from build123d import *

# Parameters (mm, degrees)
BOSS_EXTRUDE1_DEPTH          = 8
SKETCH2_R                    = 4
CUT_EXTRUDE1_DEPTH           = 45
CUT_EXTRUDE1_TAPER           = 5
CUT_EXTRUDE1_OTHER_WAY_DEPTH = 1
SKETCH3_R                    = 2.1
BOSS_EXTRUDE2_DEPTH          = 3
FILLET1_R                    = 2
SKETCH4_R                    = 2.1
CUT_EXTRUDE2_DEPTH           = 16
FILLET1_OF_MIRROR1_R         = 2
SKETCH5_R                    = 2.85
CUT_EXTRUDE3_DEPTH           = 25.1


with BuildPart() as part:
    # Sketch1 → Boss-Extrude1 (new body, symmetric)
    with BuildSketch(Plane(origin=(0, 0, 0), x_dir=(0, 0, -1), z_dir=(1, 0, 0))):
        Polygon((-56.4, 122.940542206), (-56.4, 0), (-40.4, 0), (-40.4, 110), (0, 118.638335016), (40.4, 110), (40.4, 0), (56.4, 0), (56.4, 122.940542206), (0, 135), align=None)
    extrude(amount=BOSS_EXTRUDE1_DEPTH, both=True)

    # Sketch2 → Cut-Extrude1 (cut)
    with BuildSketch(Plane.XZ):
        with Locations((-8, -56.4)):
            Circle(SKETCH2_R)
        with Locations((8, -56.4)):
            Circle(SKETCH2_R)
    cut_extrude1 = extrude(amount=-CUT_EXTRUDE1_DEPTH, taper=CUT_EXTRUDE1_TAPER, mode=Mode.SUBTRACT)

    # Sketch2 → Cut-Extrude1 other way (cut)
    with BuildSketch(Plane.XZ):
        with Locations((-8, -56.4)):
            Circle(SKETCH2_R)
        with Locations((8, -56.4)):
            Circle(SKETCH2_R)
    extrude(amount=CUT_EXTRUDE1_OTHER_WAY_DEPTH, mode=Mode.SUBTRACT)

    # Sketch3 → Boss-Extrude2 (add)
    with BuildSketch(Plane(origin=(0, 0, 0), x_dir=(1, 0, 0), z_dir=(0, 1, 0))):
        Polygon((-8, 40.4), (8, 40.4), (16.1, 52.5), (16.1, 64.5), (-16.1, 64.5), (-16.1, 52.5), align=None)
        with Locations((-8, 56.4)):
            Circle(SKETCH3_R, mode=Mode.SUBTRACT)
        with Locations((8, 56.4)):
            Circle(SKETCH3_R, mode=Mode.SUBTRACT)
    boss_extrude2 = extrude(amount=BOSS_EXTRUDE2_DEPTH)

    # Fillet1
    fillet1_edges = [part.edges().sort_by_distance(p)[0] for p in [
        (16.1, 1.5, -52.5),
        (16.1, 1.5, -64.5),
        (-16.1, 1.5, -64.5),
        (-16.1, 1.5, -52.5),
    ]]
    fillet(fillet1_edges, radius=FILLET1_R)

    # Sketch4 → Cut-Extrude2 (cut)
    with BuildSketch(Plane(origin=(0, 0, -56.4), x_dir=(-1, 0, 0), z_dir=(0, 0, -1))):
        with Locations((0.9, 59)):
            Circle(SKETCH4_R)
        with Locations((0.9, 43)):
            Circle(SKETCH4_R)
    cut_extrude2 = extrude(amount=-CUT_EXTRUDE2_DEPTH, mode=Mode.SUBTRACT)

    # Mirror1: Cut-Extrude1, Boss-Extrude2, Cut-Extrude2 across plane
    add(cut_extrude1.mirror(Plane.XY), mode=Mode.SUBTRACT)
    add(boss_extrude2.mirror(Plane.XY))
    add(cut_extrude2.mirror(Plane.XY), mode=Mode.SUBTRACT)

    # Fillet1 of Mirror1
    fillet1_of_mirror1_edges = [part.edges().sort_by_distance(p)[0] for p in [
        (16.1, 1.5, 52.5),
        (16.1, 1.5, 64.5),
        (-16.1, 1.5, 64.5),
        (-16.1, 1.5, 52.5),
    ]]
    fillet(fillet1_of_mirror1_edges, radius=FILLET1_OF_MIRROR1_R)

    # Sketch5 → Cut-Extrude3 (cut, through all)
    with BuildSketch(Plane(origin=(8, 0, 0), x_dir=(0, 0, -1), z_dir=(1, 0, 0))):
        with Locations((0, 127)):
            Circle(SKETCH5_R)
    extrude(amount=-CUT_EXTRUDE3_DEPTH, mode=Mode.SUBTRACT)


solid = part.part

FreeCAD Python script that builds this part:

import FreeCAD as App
import Part
import Sketcher

V = App.Vector


def edges_at(feature, points):
    """Names of the edges that pass closest to the given points."""
    edges = feature.Shape.Edges
    near = lambda p: min(range(len(edges)), key=lambda i: edges[i].distToShape(Part.Vertex(*p))[0])
    return sorted({f"Edge{near(p) + 1}" for p in points})

doc = App.newDocument("Part")
body = doc.addObject("PartDesign::Body", "Body")

sketch1 = doc.addObject("Sketcher::SketchObject", "Sketch")
body.addObject(sketch1)
sketch1.AttachmentSupport = (doc.YZ_Plane, [""])
sketch1.MapMode = "FlatFace"
sketch1.addGeometry([
    Part.LineSegment(V(123, 56, 0), V(0, 56, 0)),
    Part.LineSegment(V(0, 56, 0), V(0, 40, 0)),
    Part.LineSegment(V(0, 40, 0), V(110, 40, 0)),
    Part.LineSegment(V(110, 40, 0), V(119, 0, 0)),
    Part.LineSegment(V(119, 0, 0), V(110, -40, 0)),
    Part.LineSegment(V(110, -40, 0), V(0, -40, 0)),
    Part.LineSegment(V(0, -40, 0), V(0, -56, 0)),
    Part.LineSegment(V(0, -56, 0), V(123, -56, 0)),
    Part.LineSegment(V(123, -56, 0), V(135, 0, 0)),
    Part.LineSegment(V(135, 0, 0), V(123, 56, 0)),
], False)
sketch1.addConstraint([
    Sketcher.Constraint("Coincident", 0, 2, 1, 1),
    Sketcher.Constraint("Coincident", 1, 2, 2, 1),
    Sketcher.Constraint("Coincident", 2, 2, 3, 1),
    Sketcher.Constraint("Coincident", 3, 2, 4, 1),
    Sketcher.Constraint("Coincident", 4, 2, 5, 1),
    Sketcher.Constraint("Coincident", 5, 2, 6, 1),
    Sketcher.Constraint("Coincident", 6, 2, 7, 1),
    Sketcher.Constraint("Coincident", 7, 2, 8, 1),
    Sketcher.Constraint("Coincident", 8, 2, 9, 1),
    Sketcher.Constraint("Coincident", 9, 2, 0, 1),
    Sketcher.Constraint("Horizontal", 0),
    Sketcher.Constraint("Vertical", 1),
    Sketcher.Constraint("Horizontal", 2),
    Sketcher.Constraint("Horizontal", 5),
    Sketcher.Constraint("Vertical", 6),
    Sketcher.Constraint("Horizontal", 7),
    Sketcher.Constraint("Symmetric", 1, 2, 5, 2, -1, 1),
    Sketcher.Constraint("Symmetric", 0, 2, 6, 2, -1),
    Sketcher.Constraint("PointOnObject", 3, 2, -1),
    Sketcher.Constraint("PointOnObject", 8, 2, -1),
    Sketcher.Constraint("Parallel", 4, 8),
    Sketcher.Constraint("Parallel", 3, 9),
    Sketcher.Constraint("Vertical", 2, 2, 4, 2),
    Sketcher.Constraint("DistanceX", 2, 1, 2, 2, 110.0),
    Sketcher.Constraint("DistanceY", 1, 2, 1, 1, 16.0),
    Sketcher.Constraint("DistanceX", -1, 1, 8, 2, 135.0),
    Sketcher.Constraint("DistanceY", -1, 1, 0, 2, 56.4),
    Sketcher.Constraint("Distance", 8, 57.674869),
])
pad1 = doc.addObject("PartDesign::Pad", "Pad")
body.addObject(pad1)
pad1.Profile = sketch1
pad1.Length = 16
pad1.Midplane = True

sketch2 = doc.addObject("Sketcher::SketchObject", "Sketch001")
body.addObject(sketch2)
sketch2.AttachmentSupport = (doc.XZ_Plane, [""])
sketch2.MapMode = "FlatFace"
sketch2.addGeometry([
    Part.Circle(V(-8, -56.4, 0), V(0, 0, 1), 4),
    Part.Circle(V(8, -56.4, 0), V(0, 0, 1), 4),
], False)
sketch2.addConstraint([
    Sketcher.Constraint("Equal", 0, 1),
    Sketcher.Constraint("Symmetric", 0, 3, 1, 3, -2),
    Sketcher.Constraint("Diameter", 0, 8.0),
    Sketcher.Constraint("DistanceX", 0, 3, -1, 1, 8.0),
    Sketcher.Constraint("DistanceY", 0, 3, -1, 1, 56.4),
])
pocket1 = doc.addObject("PartDesign::Pocket", "Pocket")
body.addObject(pocket1)
pocket1.Profile = sketch2
pocket1.Length = 45
pocket1.TaperAngle = -5

sketch3 = doc.addObject("Sketcher::SketchObject", "Sketch002")
body.addObject(sketch3)
sketch3.AttachmentSupport = (doc.XZ_Plane, [""])
sketch3.MapMode = "FlatFace"
sketch3.addGeometry([
    Part.Circle(V(-8, -56.4, 0), V(0, 0, 1), 4),
    Part.Circle(V(8, -56.4, 0), V(0, 0, 1), 4),
], False)
sketch3.addConstraint([
    Sketcher.Constraint("Equal", 0, 1),
    Sketcher.Constraint("Symmetric", 0, 3, 1, 3, -2),
    Sketcher.Constraint("Diameter", 0, 8.0),
    Sketcher.Constraint("DistanceX", 0, 3, -1, 1, 8.0),
    Sketcher.Constraint("DistanceY", 0, 3, -1, 1, 56.4),
])
pocket2 = doc.addObject("PartDesign::Pocket", "Pocket001")
body.addObject(pocket2)
pocket2.Profile = sketch3
pocket2.Length = 1
pocket2.Reversed = True

sketch4 = doc.addObject("Sketcher::SketchObject", "Sketch003")
body.addObject(sketch4)
sketch4.AttachmentSupport = (doc.XZ_Plane, [""])
sketch4.MapMode = "FlatFace"
sketch4.addGeometry([
    Part.LineSegment(V(-8, -40.4, 0), V(8, -40.4, 0)),
    Part.LineSegment(V(8, -40.4, 0), V(16.1, -52.5, 0)),
    Part.LineSegment(V(16.1, -52.5, 0), V(16.1, -64.5, 0)),
    Part.LineSegment(V(16.1, -64.5, 0), V(-16.1, -64.5, 0)),
    Part.LineSegment(V(-16.1, -64.5, 0), V(-16.1, -52.5, 0)),
    Part.LineSegment(V(-16.1, -52.5, 0), V(-8, -40.4, 0)),
    Part.Circle(V(-8, -56.4, 0), V(0, 0, 1), 2.1),
    Part.Circle(V(8, -56.4, 0), V(0, 0, 1), 2.1),
], False)
sketch4.addConstraint([
    Sketcher.Constraint("Coincident", 0, 2, 1, 1),
    Sketcher.Constraint("Coincident", 1, 2, 2, 1),
    Sketcher.Constraint("Coincident", 2, 2, 3, 1),
    Sketcher.Constraint("Coincident", 3, 2, 4, 1),
    Sketcher.Constraint("Coincident", 4, 2, 5, 1),
    Sketcher.Constraint("Coincident", 5, 2, 0, 1),
    Sketcher.Constraint("Horizontal", 0),
    Sketcher.Constraint("Vertical", 2),
    Sketcher.Constraint("Horizontal", 3),
    Sketcher.Constraint("Vertical", 4),
    Sketcher.Constraint("Equal", 6, 7),
    Sketcher.Constraint("Symmetric", 6, 3, 7, 3, -2),
    Sketcher.Constraint("Symmetric", 1, 2, 4, 2, -2),
    Sketcher.Constraint("Vertical", 7, 3, 0, 2),
    Sketcher.Constraint("Vertical", 6, 3, 5, 2),
    Sketcher.Constraint("Diameter", 6, 4.2),
    Sketcher.Constraint("DistanceX", 0, 1, 0, 2, 16.0),
    Sketcher.Constraint("DistanceY", 2, 2, 2, 1, 12.0),
    Sketcher.Constraint("DistanceX", 3, 2, 3, 1, 32.2),
    Sketcher.Constraint("DistanceY", 7, 3, 0, 2, 16.0),
    Sketcher.Constraint("DistanceY", 6, 3, -1, 1, 56.4),
    Sketcher.Constraint("DistanceY", 1, 2, -1, 1, 52.5),
])
pad2 = doc.addObject("PartDesign::Pad", "Pad001")
body.addObject(pad2)
pad2.Profile = sketch4
pad2.Length = 3
pad2.Reversed = True
doc.recompute()

fillet = doc.addObject("PartDesign::Fillet", "Fillet")
body.addObject(fillet)
fillet.Base = (pad2, edges_at(pad2, [
    (16.1, 1.5, -52.5),
    (16.1, 1.5, -64.5),
    (-16.1, 1.5, -64.5),
    (-16.1, 1.5, -52.5),
]))
fillet.Radius = 2

sketch5 = doc.addObject("Sketcher::SketchObject", "Sketch004")
body.addObject(sketch5)
sketch5.AttachmentSupport = (doc.XY_Plane, [""])
sketch5.MapMode = "FlatFace"
sketch5.AttachmentOffset = App.Placement(V(0, 0, -56.4), App.Rotation())
sketch5.addGeometry([
    Part.Circle(V(-0.9, 59, 0), V(0, 0, 1), 2.1),
    Part.Circle(V(-0.9, 43, 0), V(0, 0, 1), 2.1),
], False)
sketch5.addConstraint([
    Sketcher.Constraint("Equal", 0, 1),
    Sketcher.Constraint("Vertical", 0, 3, 1, 3),
    Sketcher.Constraint("Diameter", 0, 4.2),
    Sketcher.Constraint("DistanceY", -1, 1, 0, 3, 59.0),
    Sketcher.Constraint("DistanceY", -1, 1, 1, 3, 43.0),
    Sketcher.Constraint("DistanceX", 0, 3, -1, 1, 0.9),
])
pocket3 = doc.addObject("PartDesign::Pocket", "Pocket002")
body.addObject(pocket3)
pocket3.Profile = sketch5
pocket3.Length = 16
pocket3.Reversed = True
doc.recompute()

mirrored = doc.addObject("PartDesign::Mirrored", "Mirrored")
body.addObject(mirrored)
mirrored.Originals = [pocket1, pad2, pocket3]
mirrored.MirrorPlane = (doc.XY_Plane, [""])
body.Tip = mirrored
doc.recompute()

fillet2 = doc.addObject("PartDesign::Fillet", "Fillet001")
body.addObject(fillet2)
fillet2.Base = (mirrored, edges_at(mirrored, [
    (16.1, 1.5, 52.5),
    (16.1, 1.5, 64.5),
    (-16.1, 1.5, 64.5),
    (-16.1, 1.5, 52.5),
]))
fillet2.Radius = 2

sketch6 = doc.addObject("Sketcher::SketchObject", "Sketch005")
body.addObject(sketch6)
sketch6.AttachmentSupport = (doc.YZ_Plane, [""])
sketch6.MapMode = "FlatFace"
sketch6.AttachmentOffset = App.Placement(V(0, 0, 8), App.Rotation())
sketch6.addGeometry(Part.Circle(V(127, 0, 0), V(0, 0, 1), 2.9), False)
sketch6.addConstraint([
    Sketcher.Constraint("PointOnObject", 0, 3, -1),
    Sketcher.Constraint("Diameter", 0, 5.7),
    Sketcher.Constraint("DistanceX", -1, 1, 0, 3, 127.0),
])
pocket4 = doc.addObject("PartDesign::Pocket", "Pocket003")
body.addObject(pocket4)
pocket4.Profile = sketch6
pocket4.Type = "ThroughAll"

doc.recompute()
